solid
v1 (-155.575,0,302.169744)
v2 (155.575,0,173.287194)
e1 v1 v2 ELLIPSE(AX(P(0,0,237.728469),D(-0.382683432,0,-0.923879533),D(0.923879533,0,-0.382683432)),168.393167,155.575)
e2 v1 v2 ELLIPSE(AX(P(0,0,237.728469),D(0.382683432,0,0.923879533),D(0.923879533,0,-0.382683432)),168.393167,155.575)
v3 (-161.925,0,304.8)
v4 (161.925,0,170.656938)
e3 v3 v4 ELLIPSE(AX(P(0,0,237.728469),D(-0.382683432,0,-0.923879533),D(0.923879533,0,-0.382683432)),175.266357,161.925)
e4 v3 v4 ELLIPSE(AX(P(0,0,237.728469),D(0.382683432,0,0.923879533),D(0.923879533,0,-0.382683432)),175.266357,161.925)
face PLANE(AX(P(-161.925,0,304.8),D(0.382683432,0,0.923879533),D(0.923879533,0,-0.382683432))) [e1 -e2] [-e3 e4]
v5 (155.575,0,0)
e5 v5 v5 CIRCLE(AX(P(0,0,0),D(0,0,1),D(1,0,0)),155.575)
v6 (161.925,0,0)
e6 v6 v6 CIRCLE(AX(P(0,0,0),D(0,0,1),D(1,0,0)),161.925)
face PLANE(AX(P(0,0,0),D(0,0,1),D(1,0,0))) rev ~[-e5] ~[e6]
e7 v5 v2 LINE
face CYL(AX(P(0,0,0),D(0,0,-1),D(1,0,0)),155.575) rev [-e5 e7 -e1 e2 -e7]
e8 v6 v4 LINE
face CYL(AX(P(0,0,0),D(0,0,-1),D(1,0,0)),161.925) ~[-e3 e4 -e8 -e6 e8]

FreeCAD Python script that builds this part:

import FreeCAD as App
import Part
import Sketcher

V = App.Vector
Q = App.Units.Quantity


def add_polygon(sketch, points):
    """Adds a closed chain of lines whose ends are joined by coincident constraints."""
    first, n = sketch.GeometryCount, len(points)
    for a, b in zip(points, points[1:] + points[:1]):
        sketch.addGeometry(Part.LineSegment(App.Vector(*a, 0), App.Vector(*b, 0)), False)
    for i in range(n):
        sketch.addConstraint(Sketcher.Constraint("Coincident", first + i, 2, first + (i + 1) % n, 1))

doc = App.newDocument("Part")
body = doc.addObject("PartDesign::Body", "Body")

sketch1 = body.newObject("Sketcher::SketchObject", "Sketch")
sketch1.AttachmentSupport = (doc.getObject("XY_Plane"), [""])
sketch1.MapMode = "FlatFace"
sketch1.addGeometry([
    Part.Circle(V(0, 0, 0), V(0, 0, 1), 162),
    Part.Circle(V(0, 0, 0), V(0, 0, 1), 156),
], False)
sketch1.addConstraint([
    Sketcher.Constraint("Coincident", 0, 3, -1, 1),
    Sketcher.Constraint("Coincident", 1, 3, -1, 1),
    Sketcher.Constraint("Diameter", 0, Q("12.75 in")),
    Sketcher.Constraint("Diameter", 1, Q("12.25 in")),
])
pad1 = body.newObject("PartDesign::Pad", "Pad")
pad1.Profile = sketch1
pad1.Length = Q("12 in")

sketch2 = body.newObject("Sketcher::SketchObject", "Sketch001")
sketch2.AttachmentSupport = (doc.getObject("XZ_Plane"), [""])
sketch2.MapMode = "FlatFace"
add_polygon(sketch2, [(-162, 424), (-162, 305), (162, 171), (166, 433)])
sketch2.addConstraint([
    Sketcher.Constraint("Vertical", 0),
    Sketcher.Constraint("DistanceY", -1, 1, 0, 2, Q("12 in")),
    Sketcher.Constraint("Angle", 1, Q("-22.5 deg")),
    Sketcher.Constraint("DistanceX", 0, 2, 1, 2, Q("12.75 in")),
    Sketcher.Constraint("DistanceX", 0, 2, -1, 1, Q("6.375 in")),
    Sketcher.Constraint("DistanceY", 0, 2, 0, 1, Q("118.893001 mm")),
    Sketcher.Constraint("DistanceX", -1, 1, 2, 2, Q("165.986419 mm")),
    Sketcher.Constraint("DistanceY", 3, 2, 2, 2, Q("9.773672 mm")),
])
pocket1 = body.newObject("PartDesign::Pocket", "Pocket")
pocket1.Profile = sketch2
pocket1.Type = "ThroughAll"
pocket1.Midplane = True

doc.recompute()
